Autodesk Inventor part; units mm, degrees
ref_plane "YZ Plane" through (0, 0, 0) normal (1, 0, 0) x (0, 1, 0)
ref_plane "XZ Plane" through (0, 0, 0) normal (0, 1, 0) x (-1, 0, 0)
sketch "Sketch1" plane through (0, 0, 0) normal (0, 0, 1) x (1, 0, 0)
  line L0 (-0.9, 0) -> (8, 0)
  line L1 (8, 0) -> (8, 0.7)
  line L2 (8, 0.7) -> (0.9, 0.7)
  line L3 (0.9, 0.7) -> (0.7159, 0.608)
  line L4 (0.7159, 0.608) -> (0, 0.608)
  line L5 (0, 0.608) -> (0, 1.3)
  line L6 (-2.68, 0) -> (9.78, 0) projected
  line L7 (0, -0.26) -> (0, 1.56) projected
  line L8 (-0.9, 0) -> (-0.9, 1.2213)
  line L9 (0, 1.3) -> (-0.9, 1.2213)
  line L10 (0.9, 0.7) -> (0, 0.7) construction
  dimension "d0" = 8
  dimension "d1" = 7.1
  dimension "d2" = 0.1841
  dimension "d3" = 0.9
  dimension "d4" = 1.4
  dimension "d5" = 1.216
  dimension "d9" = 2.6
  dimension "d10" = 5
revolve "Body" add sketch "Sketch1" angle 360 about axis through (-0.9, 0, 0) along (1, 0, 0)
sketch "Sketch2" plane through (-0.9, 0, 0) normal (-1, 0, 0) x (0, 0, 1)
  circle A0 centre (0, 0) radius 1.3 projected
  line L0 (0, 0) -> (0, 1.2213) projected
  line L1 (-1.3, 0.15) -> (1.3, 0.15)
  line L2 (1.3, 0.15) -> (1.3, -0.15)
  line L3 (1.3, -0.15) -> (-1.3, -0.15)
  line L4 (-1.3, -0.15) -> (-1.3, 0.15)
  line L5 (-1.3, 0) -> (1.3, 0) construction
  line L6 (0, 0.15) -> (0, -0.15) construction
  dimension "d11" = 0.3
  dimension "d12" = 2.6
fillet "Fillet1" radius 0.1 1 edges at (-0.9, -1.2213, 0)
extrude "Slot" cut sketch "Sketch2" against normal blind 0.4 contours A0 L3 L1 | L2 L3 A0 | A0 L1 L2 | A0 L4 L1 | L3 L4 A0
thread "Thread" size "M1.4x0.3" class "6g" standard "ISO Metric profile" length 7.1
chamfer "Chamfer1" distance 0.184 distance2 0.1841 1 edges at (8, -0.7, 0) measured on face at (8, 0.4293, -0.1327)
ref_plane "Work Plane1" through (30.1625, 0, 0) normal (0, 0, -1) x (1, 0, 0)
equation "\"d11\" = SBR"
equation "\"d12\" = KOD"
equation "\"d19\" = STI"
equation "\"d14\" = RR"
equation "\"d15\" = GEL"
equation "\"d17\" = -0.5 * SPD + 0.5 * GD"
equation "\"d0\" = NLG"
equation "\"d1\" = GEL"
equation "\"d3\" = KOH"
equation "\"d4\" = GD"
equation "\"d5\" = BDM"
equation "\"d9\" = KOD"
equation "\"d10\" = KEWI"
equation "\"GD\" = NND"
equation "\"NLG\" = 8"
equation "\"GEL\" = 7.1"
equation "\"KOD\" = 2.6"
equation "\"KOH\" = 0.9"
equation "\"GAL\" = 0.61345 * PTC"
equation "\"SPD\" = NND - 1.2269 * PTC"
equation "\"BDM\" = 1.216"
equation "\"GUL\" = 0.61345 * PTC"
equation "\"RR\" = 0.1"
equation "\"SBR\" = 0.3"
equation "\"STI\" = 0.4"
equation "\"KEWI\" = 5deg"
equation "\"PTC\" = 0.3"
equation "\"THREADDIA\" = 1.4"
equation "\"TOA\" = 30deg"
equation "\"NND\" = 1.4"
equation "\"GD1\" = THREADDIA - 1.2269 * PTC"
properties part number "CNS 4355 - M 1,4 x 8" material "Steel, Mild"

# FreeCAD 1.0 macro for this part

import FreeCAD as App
import Part
import Sketcher
from FreeCAD import Vector
Q = App.Units.Quantity


def edges_at(feature, points):
    """Names of the edges that pass closest to the given points."""
    edges = feature.Shape.Edges
    near = lambda p: min(range(len(edges)), key=lambda i: edges[i].distToShape(Part.Vertex(*p))[0])
    return sorted({f"Edge{near(p) + 1}" for p in points})

doc = App.newDocument("Part")
body = doc.addObject("PartDesign::Body", "Body")

# Sketch on XY plane
sketch1 = body.newObject("Sketcher::SketchObject", "Sketch")
sketch1.AttachmentSupport = (doc.getObject("XY_Plane"), [""])
sketch1.MapMode = "FlatFace"
sketch1.addGeometry([
    Part.LineSegment(Vector(-0.9, 1.22, 0), Vector(-0.9, 0, 0)),  # 0
    Part.LineSegment(Vector(-0.9, 0, 0), Vector(8, 0, 0)),  # 1
    Part.LineSegment(Vector(8, 0, 0), Vector(8, 0.7, 0)),  # 2
    Part.LineSegment(Vector(8, 0.7, 0), Vector(0.9, 0.7, 0)),  # 3
    Part.LineSegment(Vector(0.9, 0.7, 0), Vector(0.72, 0.61, 0)),  # 4
    Part.LineSegment(Vector(0.72, 0.61, 0), Vector(0, 0.61, 0)),  # 5
    Part.LineSegment(Vector(0, 0.61, 0), Vector(0, 1.3, 0)),  # 6
    Part.LineSegment(Vector(0, 1.3, 0), Vector(-0.9, 1.22, 0)),  # 7
], False)
sketch1.addConstraint([
    Sketcher.Constraint("Coincident", 0, 2, 1, 1),
    Sketcher.Constraint("Coincident", 1, 2, 2, 1),
    Sketcher.Constraint("Coincident", 2, 2, 3, 1),
    Sketcher.Constraint("Coincident", 3, 2, 4, 1),
    Sketcher.Constraint("Coincident", 4, 2, 5, 1),
    Sketcher.Constraint("Coincident", 5, 2, 6, 1),
    Sketcher.Constraint("Coincident", 6, 2, 7, 1),
    Sketcher.Constraint("Coincident", 7, 2, 0, 1),
    Sketcher.Constraint("Vertical", 0),
    Sketcher.Constraint("Horizontal", 1),
    Sketcher.Constraint("Vertical", 2),
    Sketcher.Constraint("Horizontal", 3),
    Sketcher.Constraint("Horizontal", 5),
    Sketcher.Constraint("Vertical", 6),
    Sketcher.Constraint("PointOnObject", 0, 2, -1),
    Sketcher.Constraint("PointOnObject", 5, 2, -2),
    Sketcher.Constraint("DistanceX", 3, 2, 3, 1, Q("7.1 mm")),
    Sketcher.Constraint("DistanceX", -1, 1, 1, 2, Q("8 mm")),
    Sketcher.Constraint("DistanceX", 0, 2, -1, 1, Q("0.9 mm")),
    Sketcher.Constraint("DistanceY", 2, 1, 2, 2, Q("0.7 mm")),
    Sketcher.Constraint("DistanceX", 4, 2, 3, 2, Q("0.184 mm")),
    Sketcher.Constraint("DistanceY", -1, 1, 6, 2, Q("1.3 mm")),
    Sketcher.Constraint("DistanceY", 6, 1, 6, 2, Q("0.692 mm")),
    Sketcher.Constraint("DistanceY", 0, 2, 0, 1, Q("1.2213 mm")),
])
revolution = body.newObject("PartDesign::Revolution", "Revolution")
revolution.Profile = sketch1
revolution.ReferenceAxis = (sketch1, ["H_Axis"])
revolution.Angle = 360
doc.recompute()

fillet = body.newObject("PartDesign::Fillet", "Fillet")
fillet.Base = (revolution, edges_at(revolution, [(-0.9, -1.221, 0)]))
fillet.Radius = 0.1

# Sketch on YZ plane
sketch2 = body.newObject("Sketcher::SketchObject", "Sketch001")
sketch2.AttachmentSupport = (doc.getObject("YZ_Plane"), [""])
sketch2.MapMode = "FlatFace"
sketch2.AttachmentOffset = App.Placement(Vector(0, 0, -0.9), App.Rotation())
sketch2.addGeometry([
    Part.LineSegment(Vector(-0.15, 1.3, 0), Vector(0.15, 1.3, 0)),
    Part.LineSegment(Vector(0.15, 1.3, 0), Vector(0.15, -1.3, 0)),
    Part.LineSegment(Vector(0.15, -1.3, 0), Vector(-0.15, -1.3, 0)),
    Part.LineSegment(Vector(-0.15, -1.3, 0), Vector(-0.15, 1.3, 0)),
], False)
sketch2.addConstraint([
    Sketcher.Constraint("Coincident", 0, 2, 1, 1),
    Sketcher.Constraint("Coincident", 1, 2, 2, 1),
    Sketcher.Constraint("Coincident", 2, 2, 3, 1),
    Sketcher.Constraint("Coincident", 3, 2, 0, 1),
    Sketcher.Constraint("Horizontal", 0),
    Sketcher.Constraint("Vertical", 1),
    Sketcher.Constraint("Horizontal", 2),
    Sketcher.Constraint("Vertical", 3),
    Sketcher.Constraint("Symmetric", 0, 2, 2, 2, -1, 1),
    Sketcher.Constraint("DistanceX", 0, 1, 0, 2, Q("0.3 mm")),
    Sketcher.Constraint("DistanceY", 1, 2, 1, 1, Q("2.6 mm")),
])
pocket1 = body.newObject("PartDesign::Pocket", "Pocket")
pocket1.Profile = sketch2
pocket1.Length = 0.4
pocket1.Reversed = True
doc.recompute()

chamfer = body.newObject("PartDesign::Chamfer", "Chamfer")
chamfer.Base = (pocket1, edges_at(pocket1, [(8, -0.7, 0)]))
chamfer.ChamferType = "Two distances"
chamfer.Size = 0.184
chamfer.Size2 = 0.1841

doc.recompute()
